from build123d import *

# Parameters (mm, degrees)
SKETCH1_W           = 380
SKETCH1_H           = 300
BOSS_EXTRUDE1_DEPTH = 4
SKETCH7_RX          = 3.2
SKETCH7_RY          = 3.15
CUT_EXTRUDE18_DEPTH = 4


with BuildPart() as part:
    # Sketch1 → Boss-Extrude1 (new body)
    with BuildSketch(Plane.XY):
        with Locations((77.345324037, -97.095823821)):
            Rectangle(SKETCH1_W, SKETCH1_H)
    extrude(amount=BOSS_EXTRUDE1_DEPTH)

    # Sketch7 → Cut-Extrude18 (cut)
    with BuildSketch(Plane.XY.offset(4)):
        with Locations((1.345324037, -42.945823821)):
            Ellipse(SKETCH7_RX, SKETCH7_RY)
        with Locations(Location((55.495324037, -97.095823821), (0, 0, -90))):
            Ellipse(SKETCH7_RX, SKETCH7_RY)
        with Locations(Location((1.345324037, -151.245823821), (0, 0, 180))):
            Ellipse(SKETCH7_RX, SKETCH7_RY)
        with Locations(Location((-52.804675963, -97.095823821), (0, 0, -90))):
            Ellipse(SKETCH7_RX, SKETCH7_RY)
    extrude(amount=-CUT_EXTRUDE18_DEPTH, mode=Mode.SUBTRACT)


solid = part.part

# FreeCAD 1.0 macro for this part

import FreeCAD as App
import Part
import Sketcher
Q = App.Units.Quantity


def add_polygon(sketch, points):
    """Adds a closed chain of lines whose ends are joined by coincident constraints."""
    first, n = sketch.GeometryCount, len(points)
    for a, b in zip(points, points[1:] + points[:1]):
        sketch.addGeometry(Part.LineSegment(App.Vector(*a, 0), App.Vector(*b, 0)), False)
    for i in range(n):
        sketch.addConstraint(Sketcher.Constraint("Coincident", first + i, 2, first + (i + 1) % n, 1))

doc = App.newDocument("Part")
body = doc.addObject("PartDesign::Body", "Body")

sketch1 = body.newObject("Sketcher::SketchObject", "Sketch")
sketch1.AttachmentSupport = (doc.getObject("XY_Plane"), [""])
sketch1.MapMode = "FlatFace"
add_polygon(sketch1, [(-113, 53), (-113, -247), (267, -247), (267, 53)])
sketch1.addConstraint(Sketcher.Constraint("Vertical", 0))
sketch1.addConstraint(Sketcher.Constraint("Horizontal", 1))
sketch1.addConstraint(Sketcher.Constraint("Vertical", 2))
sketch1.addConstraint(Sketcher.Constraint("Horizontal", 3))
sketch1.addConstraint(Sketcher.Constraint("DistanceX", 1, 1, 1, 2, Q("380 mm")))
sketch1.addConstraint(Sketcher.Constraint("DistanceY", 0, 2, 0, 1, Q("300 mm")))
sketch1.addConstraint(Sketcher.Constraint("DistanceX", 0, 2, -1, 1, Q("112.654676 mm")))
sketch1.addConstraint(Sketcher.Constraint("DistanceY", 0, 2, -1, 1, Q("247.095824 mm")))
pad1 = body.newObject("PartDesign::Pad", "Pad")
pad1.Profile = sketch1
pad1.Length = 4

sketch2 = body.newObject("Sketcher::SketchObject", "Sketch001")
sketch2.AttachmentSupport = (doc.getObject("XY_Plane"), [""])
sketch2.MapMode = "FlatFace"
sketch2.AttachmentOffset = App.Placement(App.Vector(0, 0, 4), App.Rotation())
sketch2.addGeometry(Part.Ellipse(App.Vector(4.545324, -42.945824, 0), App.Vector(1.345324, -39.795824, 0), App.Vector(1.345324, -42.945824, 0)), False)
sketch2.addGeometry(Part.Ellipse(App.Vector(55.495324, -100.295824, 0), App.Vector(58.645324, -97.095824, 0), App.Vector(55.495324, -97.095824, 0)), False)
sketch2.addGeometry(Part.Ellipse(App.Vector(-1.854676, -151.245824, 0), App.Vector(1.345324, -154.395824, 0), App.Vector(1.345324, -151.245824, 0)), False)
sketch2.addGeometry(Part.Ellipse(App.Vector(-52.804676, -100.295824, 0), App.Vector(-49.654676, -97.095824, 0), App.Vector(-52.804676, -97.095824, 0)), False)
sketch2.addConstraint(Sketcher.Constraint("Block", 0))
sketch2.addConstraint(Sketcher.Constraint("Block", 1))
sketch2.addConstraint(Sketcher.Constraint("Block", 2))
sketch2.addConstraint(Sketcher.Constraint("Block", 3))
pocket1 = body.newObject("PartDesign::Pocket", "Pocket")
pocket1.Profile = sketch2
pocket1.Length = 4

doc.recompute()
